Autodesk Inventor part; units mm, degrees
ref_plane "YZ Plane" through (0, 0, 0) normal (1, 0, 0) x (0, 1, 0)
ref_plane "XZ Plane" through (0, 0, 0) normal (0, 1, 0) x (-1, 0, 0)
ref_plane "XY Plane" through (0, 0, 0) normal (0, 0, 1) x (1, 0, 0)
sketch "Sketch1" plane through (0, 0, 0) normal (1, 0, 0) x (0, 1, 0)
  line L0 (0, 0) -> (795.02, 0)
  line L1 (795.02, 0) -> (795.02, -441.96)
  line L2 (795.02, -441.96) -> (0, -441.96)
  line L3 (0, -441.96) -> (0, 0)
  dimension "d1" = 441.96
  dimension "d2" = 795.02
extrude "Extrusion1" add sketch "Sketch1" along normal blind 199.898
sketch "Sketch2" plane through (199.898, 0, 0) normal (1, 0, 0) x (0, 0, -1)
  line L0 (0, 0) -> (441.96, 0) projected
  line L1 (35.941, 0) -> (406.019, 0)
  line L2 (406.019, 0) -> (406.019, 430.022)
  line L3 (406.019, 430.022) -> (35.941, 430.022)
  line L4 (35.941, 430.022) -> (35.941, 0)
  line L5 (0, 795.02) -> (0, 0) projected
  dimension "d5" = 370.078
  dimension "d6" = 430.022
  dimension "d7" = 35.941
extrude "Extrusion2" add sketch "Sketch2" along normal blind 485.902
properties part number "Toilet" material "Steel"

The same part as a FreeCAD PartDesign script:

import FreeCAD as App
import Part
import Sketcher
from FreeCAD import Vector
Q = App.Units.Quantity


def add_polygon(sketch, points):
    """Adds a closed chain of lines whose ends are joined by coincident constraints."""
    first, n = sketch.GeometryCount, len(points)
    for a, b in zip(points, points[1:] + points[:1]):
        sketch.addGeometry(Part.LineSegment(App.Vector(*a, 0), App.Vector(*b, 0)), False)
    for i in range(n):
        sketch.addConstraint(Sketcher.Constraint("Coincident", first + i, 2, first + (i + 1) % n, 1))

doc = App.newDocument("Part")
params = doc.addObject("Spreadsheet::Sheet", "Params")
for row, (alias, value) in enumerate([
    ("sketch1_width", "31.3 in"),
    ("sketch1_height", "17.4 in"),
    ("pad1_length", "7.87 in"),
    ("sketch2_width", "16.93 in"),
    ("sketch2_height", "14.57 in"),
    ("pad2_length", "19.13 in"),
], start=1):
    params.set(f"A{row}", alias)
    params.set(f"B{row}", "=" + value)
    params.setAlias(f"B{row}", alias)

body = doc.addObject("PartDesign::Body", "Body")

# Sketch on YZ plane
sketch1 = body.newObject("Sketcher::SketchObject", "Sketch")
sketch1.AttachmentSupport = (doc.getObject("YZ_Plane"), [""])
sketch1.MapMode = "FlatFace"
add_polygon(sketch1, [(795, 0), (0, 0), (0, -442), (795, -442)])  # lines 0-3
sketch1.addConstraint(Sketcher.Constraint("Horizontal", 0))
sketch1.addConstraint(Sketcher.Constraint("Vertical", 1))
sketch1.addConstraint(Sketcher.Constraint("Horizontal", 2))
sketch1.addConstraint(Sketcher.Constraint("Vertical", 3))
sketch1.addConstraint(Sketcher.Constraint("Coincident", 0, 2, -1, 1))
sketch1.addConstraint(Sketcher.Constraint("DistanceX", 0, 2, 0, 1, Q("31.3 in")))
sketch1.addConstraint(Sketcher.Constraint("DistanceY", 1, 2, 1, 1, Q("17.4 in")))
sketch1.setExpression("Constraints[9]", "Params.sketch1_width")
sketch1.setExpression("Constraints[10]", "Params.sketch1_height")
pad1 = body.newObject("PartDesign::Pad", "Pad")
pad1.Profile = sketch1
pad1.setExpression("Length", "Params.pad1_length")

# Sketch on YZ plane
sketch2 = body.newObject("Sketcher::SketchObject", "Sketch001")
sketch2.AttachmentSupport = (doc.getObject("YZ_Plane"), [""])
sketch2.MapMode = "FlatFace"
sketch2.AttachmentOffset = App.Placement(Vector(0, 0, 7.87 * 25.4), App.Rotation())
add_polygon(sketch2, [(430, -36), (0, -36), (0, -406), (430, -406)])  # lines 0-3
sketch2.addConstraint(Sketcher.Constraint("Horizontal", 0))
sketch2.addConstraint(Sketcher.Constraint("Vertical", 1))
sketch2.addConstraint(Sketcher.Constraint("Horizontal", 2))
sketch2.addConstraint(Sketcher.Constraint("Vertical", 3))
sketch2.addConstraint(Sketcher.Constraint("PointOnObject", 0, 2, -2))
sketch2.addConstraint(Sketcher.Constraint("DistanceX", 0, 2, 0, 1, Q("16.93 in")))
sketch2.addConstraint(Sketcher.Constraint("DistanceY", 1, 2, 1, 1, Q("14.57 in")))
sketch2.addConstraint(Sketcher.Constraint("DistanceY", 0, 2, -1, 1, Q("1.415 in")))
sketch2.setExpression("Constraints[9]", "Params.sketch2_width")
sketch2.setExpression("Constraints[10]", "Params.sketch2_height")
pad2 = body.newObject("PartDesign::Pad", "Pad001")
pad2.Profile = sketch2
pad2.setExpression("Length", "Params.pad2_length")

doc.recompute()
